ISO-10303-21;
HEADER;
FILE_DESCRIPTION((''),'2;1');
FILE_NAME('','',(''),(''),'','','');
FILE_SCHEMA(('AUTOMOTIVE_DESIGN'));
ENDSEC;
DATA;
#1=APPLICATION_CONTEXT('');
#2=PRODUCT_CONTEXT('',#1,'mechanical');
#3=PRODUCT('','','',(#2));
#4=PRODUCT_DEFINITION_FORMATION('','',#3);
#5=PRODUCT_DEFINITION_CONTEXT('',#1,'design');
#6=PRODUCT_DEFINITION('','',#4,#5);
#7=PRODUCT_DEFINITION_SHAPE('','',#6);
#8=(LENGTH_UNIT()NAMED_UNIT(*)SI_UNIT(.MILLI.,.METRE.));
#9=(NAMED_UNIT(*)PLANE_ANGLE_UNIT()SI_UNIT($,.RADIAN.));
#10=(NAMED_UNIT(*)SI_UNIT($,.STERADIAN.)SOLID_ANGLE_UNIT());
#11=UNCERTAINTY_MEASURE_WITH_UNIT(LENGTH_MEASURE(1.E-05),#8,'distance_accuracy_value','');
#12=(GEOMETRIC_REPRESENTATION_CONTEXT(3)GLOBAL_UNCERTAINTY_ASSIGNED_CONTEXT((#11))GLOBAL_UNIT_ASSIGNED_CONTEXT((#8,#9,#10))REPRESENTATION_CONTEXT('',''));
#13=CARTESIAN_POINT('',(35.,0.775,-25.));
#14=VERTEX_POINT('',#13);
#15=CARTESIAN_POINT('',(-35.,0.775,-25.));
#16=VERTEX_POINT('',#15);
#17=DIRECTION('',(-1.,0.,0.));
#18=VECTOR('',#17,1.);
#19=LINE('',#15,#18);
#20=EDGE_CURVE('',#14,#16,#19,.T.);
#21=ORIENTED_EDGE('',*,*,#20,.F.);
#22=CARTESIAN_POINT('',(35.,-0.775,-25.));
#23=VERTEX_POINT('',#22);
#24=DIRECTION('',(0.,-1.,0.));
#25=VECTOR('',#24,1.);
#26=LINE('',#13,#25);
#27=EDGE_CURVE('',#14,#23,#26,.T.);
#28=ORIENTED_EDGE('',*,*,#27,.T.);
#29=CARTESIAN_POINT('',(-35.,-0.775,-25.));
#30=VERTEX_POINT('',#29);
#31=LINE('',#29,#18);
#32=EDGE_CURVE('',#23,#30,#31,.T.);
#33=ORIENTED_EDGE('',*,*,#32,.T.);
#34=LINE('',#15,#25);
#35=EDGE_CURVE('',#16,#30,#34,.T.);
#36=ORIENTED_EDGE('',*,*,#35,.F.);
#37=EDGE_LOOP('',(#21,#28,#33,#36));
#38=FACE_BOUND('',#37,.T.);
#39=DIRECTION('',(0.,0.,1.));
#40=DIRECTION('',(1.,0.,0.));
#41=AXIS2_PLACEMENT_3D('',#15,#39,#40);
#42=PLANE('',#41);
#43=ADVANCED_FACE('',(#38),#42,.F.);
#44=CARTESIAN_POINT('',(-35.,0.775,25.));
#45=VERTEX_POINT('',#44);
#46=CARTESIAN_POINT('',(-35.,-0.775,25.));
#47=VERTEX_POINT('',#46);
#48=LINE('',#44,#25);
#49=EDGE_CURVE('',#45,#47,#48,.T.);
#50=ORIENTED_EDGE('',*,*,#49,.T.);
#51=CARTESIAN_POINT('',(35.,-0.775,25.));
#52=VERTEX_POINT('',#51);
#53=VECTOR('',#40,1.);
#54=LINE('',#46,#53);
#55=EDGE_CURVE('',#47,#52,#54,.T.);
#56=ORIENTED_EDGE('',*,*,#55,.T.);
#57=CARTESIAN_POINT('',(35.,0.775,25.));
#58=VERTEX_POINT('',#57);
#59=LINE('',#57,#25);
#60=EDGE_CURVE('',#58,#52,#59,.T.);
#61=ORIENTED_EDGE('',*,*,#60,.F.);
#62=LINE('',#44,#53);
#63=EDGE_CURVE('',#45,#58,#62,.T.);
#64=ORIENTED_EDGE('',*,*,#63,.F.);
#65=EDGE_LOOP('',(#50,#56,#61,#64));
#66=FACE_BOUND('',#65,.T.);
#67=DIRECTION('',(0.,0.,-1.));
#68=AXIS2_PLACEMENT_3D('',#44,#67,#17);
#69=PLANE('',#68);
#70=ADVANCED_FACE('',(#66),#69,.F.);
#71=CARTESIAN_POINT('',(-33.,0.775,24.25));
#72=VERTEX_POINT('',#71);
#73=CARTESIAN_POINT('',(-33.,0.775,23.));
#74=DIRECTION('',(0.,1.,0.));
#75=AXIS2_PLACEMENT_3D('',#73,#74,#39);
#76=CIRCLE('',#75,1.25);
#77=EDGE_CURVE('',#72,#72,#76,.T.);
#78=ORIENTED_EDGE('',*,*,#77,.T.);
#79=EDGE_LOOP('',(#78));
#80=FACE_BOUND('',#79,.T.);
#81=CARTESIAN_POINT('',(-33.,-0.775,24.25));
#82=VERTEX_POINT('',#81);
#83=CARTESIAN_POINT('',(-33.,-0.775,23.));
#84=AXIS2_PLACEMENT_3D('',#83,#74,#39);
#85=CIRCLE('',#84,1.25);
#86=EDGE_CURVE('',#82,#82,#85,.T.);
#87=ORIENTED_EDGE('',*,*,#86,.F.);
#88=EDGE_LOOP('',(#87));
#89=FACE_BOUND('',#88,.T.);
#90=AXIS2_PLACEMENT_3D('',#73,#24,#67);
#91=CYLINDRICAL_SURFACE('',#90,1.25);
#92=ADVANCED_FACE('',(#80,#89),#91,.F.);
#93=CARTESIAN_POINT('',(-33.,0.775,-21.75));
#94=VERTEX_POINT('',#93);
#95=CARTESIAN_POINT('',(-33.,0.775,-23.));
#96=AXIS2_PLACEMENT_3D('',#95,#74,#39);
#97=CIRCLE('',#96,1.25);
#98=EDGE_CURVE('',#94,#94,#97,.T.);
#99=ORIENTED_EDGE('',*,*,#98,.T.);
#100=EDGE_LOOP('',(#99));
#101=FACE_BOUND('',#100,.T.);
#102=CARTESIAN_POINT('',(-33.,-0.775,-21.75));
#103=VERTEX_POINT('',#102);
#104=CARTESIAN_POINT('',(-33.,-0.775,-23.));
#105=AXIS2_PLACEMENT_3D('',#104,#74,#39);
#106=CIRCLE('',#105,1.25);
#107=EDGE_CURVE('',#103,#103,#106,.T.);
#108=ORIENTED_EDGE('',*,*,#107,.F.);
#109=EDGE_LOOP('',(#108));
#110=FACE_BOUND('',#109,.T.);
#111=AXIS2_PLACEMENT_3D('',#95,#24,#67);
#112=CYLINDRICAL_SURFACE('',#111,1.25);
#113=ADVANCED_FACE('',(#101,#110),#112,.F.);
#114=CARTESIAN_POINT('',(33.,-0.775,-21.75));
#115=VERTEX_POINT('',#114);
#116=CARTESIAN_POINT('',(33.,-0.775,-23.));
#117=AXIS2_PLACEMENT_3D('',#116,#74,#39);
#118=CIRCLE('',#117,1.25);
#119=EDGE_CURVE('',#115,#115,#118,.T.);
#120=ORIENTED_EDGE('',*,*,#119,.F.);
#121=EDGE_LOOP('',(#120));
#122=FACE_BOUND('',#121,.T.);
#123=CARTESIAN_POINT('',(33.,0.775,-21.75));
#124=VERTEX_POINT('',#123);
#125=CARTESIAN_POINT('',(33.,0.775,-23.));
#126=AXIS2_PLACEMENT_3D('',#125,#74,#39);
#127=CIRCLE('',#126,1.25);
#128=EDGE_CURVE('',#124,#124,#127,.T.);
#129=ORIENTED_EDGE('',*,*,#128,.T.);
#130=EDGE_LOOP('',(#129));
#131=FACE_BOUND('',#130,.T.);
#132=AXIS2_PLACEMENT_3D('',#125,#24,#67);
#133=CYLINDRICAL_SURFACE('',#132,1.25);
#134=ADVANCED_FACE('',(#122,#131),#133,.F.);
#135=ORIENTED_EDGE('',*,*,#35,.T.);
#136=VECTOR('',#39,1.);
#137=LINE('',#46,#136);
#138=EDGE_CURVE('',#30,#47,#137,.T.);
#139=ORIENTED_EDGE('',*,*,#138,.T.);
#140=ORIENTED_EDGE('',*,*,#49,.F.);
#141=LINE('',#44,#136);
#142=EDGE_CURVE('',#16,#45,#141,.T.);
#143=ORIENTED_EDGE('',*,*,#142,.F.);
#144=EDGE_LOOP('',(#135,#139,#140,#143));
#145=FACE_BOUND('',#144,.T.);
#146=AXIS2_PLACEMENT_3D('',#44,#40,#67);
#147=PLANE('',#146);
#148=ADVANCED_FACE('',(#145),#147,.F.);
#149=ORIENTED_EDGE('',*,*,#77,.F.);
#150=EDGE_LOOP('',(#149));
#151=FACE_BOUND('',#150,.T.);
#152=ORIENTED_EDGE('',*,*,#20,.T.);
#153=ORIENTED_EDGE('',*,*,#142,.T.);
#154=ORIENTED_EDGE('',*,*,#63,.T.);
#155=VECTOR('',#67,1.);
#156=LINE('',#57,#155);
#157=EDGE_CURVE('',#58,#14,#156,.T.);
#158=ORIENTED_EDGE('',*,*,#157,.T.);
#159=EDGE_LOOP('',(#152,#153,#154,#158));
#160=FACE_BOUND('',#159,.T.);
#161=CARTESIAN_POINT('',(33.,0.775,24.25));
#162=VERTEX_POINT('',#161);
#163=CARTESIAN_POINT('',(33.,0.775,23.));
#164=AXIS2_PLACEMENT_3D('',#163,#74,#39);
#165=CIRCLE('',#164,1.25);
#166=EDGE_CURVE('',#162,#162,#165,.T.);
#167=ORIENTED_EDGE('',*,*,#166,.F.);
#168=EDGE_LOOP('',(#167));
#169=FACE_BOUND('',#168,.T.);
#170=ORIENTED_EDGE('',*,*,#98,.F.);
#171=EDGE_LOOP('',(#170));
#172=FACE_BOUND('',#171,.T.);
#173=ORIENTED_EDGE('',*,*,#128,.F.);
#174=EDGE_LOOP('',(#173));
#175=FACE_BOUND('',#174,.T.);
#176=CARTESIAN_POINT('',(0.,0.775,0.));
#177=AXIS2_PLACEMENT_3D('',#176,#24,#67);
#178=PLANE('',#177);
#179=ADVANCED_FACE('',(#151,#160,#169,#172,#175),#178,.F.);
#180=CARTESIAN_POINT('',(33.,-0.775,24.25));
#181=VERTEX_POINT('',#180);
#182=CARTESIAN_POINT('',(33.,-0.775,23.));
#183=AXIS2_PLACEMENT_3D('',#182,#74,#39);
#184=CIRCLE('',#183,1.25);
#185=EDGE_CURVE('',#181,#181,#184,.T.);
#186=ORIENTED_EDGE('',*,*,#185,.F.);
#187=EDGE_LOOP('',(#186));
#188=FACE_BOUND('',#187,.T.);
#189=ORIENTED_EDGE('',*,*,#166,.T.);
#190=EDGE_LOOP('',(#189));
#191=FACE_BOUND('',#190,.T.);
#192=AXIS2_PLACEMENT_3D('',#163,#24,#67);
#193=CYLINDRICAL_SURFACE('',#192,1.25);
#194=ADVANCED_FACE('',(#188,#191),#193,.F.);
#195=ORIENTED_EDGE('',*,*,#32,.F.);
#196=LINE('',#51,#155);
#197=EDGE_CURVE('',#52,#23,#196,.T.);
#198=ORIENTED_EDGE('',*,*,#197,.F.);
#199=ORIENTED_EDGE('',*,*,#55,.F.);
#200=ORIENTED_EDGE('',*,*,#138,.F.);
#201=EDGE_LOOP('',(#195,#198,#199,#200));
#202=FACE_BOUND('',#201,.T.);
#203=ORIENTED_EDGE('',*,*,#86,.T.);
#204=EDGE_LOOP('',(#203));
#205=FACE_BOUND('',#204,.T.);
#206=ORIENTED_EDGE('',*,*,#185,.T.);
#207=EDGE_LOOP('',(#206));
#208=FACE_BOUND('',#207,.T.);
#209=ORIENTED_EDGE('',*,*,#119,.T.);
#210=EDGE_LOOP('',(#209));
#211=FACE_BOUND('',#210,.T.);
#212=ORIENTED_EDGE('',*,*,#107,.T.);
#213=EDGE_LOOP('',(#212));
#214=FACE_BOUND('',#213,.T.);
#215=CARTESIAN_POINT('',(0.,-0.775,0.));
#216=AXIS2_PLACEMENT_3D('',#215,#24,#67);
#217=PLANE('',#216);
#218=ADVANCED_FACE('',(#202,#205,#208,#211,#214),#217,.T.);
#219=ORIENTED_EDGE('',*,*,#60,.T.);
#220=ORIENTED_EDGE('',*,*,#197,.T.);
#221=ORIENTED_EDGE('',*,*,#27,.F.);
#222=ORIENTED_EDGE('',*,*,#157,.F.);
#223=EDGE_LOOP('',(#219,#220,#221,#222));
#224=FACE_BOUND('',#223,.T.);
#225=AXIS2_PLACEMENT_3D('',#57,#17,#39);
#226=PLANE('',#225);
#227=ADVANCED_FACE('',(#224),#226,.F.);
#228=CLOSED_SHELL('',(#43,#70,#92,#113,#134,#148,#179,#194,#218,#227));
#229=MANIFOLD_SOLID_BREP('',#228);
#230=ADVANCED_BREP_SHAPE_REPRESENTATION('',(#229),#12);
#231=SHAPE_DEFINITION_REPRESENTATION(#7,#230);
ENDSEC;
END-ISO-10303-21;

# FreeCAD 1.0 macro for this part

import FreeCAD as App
import Part
import Sketcher


def add_polygon(sketch, points):
    """Adds a closed chain of lines whose ends are joined by coincident constraints."""
    first, n = sketch.GeometryCount, len(points)
    for a, b in zip(points, points[1:] + points[:1]):
        sketch.addGeometry(Part.LineSegment(App.Vector(*a, 0), App.Vector(*b, 0)), False)
    for i in range(n):
        sketch.addConstraint(Sketcher.Constraint("Coincident", first + i, 2, first + (i + 1) % n, 1))

doc = App.newDocument("Part")
params = doc.addObject("Spreadsheet::Sheet", "Params")
for row, (alias, value) in enumerate([
    ("sketch1_diameter", "2.5 mm"),
    ("sketch1_width", "70 mm"),
    ("sketch1_height", "50 mm"),
    ("pad1_length", "1.55 mm"),
], start=1):
    params.set(f"A{row}", alias)
    params.set(f"B{row}", "=" + value)
    params.setAlias(f"B{row}", alias)

body = doc.addObject("PartDesign::Body", "Body")

# Sketch on XZ plane
sketch1 = doc.addObject("Sketcher::SketchObject", "Sketch")
body.addObject(sketch1)
sketch1.AttachmentSupport = (doc.XZ_Plane, [""])
sketch1.MapMode = "FlatFace"
add_polygon(sketch1, [(-35, -25), (-35, 25), (35, 25), (35, -25)])  # lines 0-3
sketch1.addGeometry(Part.Circle(App.Vector(-33, 23, 0), App.Vector(0, 0, 1), 1.25), False)  # 4
sketch1.addGeometry(Part.Circle(App.Vector(33, 23, 0), App.Vector(0, 0, 1), 1.25), False)  # 5
sketch1.addGeometry(Part.Circle(App.Vector(-33, -23, 0), App.Vector(0, 0, 1), 1.25), False)  # 6
sketch1.addGeometry(Part.Circle(App.Vector(33, -23, 0), App.Vector(0, 0, 1), 1.25), False)  # 7
sketch1.addConstraint(Sketcher.Constraint("Vertical", 0))
sketch1.addConstraint(Sketcher.Constraint("Horizontal", 1))
sketch1.addConstraint(Sketcher.Constraint("Vertical", 2))
sketch1.addConstraint(Sketcher.Constraint("Horizontal", 3))
sketch1.addConstraint(Sketcher.Constraint("Equal", 4, 5))
sketch1.addConstraint(Sketcher.Constraint("Equal", 5, 6))
sketch1.addConstraint(Sketcher.Constraint("Equal", 6, 7))
sketch1.addConstraint(Sketcher.Constraint("Symmetric", 5, 3, 6, 3, -1, 1))
sketch1.addConstraint(Sketcher.Constraint("Symmetric", 4, 3, 7, 3, -1, 1))
sketch1.addConstraint(Sketcher.Constraint("Symmetric", 0, 2, 2, 2, -1, 1))
sketch1.addConstraint(Sketcher.Constraint("Symmetric", 4, 3, 5, 3, -2))
sketch1.addConstraint(Sketcher.Constraint("Diameter", 4, 2.5))
sketch1.addConstraint(Sketcher.Constraint("DistanceX", 1, 1, 1, 2, 70.0))
sketch1.addConstraint(Sketcher.Constraint("DistanceY", 0, 1, 0, 2, 50.0))
sketch1.addConstraint(Sketcher.Constraint("DistanceX", 4, 3, -1, 1, 33.0))
sketch1.addConstraint(Sketcher.Constraint("DistanceY", -1, 1, 4, 3, 23.0))
sketch1.setExpression("Constraints[15]", "Params.sketch1_diameter")
sketch1.setExpression("Constraints[16]", "Params.sketch1_width")
sketch1.setExpression("Constraints[17]", "Params.sketch1_height")
pad1 = doc.addObject("PartDesign::Pad", "Pad")
body.addObject(pad1)
pad1.Profile = sketch1
pad1.setExpression("Length", "Params.pad1_length")
pad1.Midplane = True

doc.recompute()
